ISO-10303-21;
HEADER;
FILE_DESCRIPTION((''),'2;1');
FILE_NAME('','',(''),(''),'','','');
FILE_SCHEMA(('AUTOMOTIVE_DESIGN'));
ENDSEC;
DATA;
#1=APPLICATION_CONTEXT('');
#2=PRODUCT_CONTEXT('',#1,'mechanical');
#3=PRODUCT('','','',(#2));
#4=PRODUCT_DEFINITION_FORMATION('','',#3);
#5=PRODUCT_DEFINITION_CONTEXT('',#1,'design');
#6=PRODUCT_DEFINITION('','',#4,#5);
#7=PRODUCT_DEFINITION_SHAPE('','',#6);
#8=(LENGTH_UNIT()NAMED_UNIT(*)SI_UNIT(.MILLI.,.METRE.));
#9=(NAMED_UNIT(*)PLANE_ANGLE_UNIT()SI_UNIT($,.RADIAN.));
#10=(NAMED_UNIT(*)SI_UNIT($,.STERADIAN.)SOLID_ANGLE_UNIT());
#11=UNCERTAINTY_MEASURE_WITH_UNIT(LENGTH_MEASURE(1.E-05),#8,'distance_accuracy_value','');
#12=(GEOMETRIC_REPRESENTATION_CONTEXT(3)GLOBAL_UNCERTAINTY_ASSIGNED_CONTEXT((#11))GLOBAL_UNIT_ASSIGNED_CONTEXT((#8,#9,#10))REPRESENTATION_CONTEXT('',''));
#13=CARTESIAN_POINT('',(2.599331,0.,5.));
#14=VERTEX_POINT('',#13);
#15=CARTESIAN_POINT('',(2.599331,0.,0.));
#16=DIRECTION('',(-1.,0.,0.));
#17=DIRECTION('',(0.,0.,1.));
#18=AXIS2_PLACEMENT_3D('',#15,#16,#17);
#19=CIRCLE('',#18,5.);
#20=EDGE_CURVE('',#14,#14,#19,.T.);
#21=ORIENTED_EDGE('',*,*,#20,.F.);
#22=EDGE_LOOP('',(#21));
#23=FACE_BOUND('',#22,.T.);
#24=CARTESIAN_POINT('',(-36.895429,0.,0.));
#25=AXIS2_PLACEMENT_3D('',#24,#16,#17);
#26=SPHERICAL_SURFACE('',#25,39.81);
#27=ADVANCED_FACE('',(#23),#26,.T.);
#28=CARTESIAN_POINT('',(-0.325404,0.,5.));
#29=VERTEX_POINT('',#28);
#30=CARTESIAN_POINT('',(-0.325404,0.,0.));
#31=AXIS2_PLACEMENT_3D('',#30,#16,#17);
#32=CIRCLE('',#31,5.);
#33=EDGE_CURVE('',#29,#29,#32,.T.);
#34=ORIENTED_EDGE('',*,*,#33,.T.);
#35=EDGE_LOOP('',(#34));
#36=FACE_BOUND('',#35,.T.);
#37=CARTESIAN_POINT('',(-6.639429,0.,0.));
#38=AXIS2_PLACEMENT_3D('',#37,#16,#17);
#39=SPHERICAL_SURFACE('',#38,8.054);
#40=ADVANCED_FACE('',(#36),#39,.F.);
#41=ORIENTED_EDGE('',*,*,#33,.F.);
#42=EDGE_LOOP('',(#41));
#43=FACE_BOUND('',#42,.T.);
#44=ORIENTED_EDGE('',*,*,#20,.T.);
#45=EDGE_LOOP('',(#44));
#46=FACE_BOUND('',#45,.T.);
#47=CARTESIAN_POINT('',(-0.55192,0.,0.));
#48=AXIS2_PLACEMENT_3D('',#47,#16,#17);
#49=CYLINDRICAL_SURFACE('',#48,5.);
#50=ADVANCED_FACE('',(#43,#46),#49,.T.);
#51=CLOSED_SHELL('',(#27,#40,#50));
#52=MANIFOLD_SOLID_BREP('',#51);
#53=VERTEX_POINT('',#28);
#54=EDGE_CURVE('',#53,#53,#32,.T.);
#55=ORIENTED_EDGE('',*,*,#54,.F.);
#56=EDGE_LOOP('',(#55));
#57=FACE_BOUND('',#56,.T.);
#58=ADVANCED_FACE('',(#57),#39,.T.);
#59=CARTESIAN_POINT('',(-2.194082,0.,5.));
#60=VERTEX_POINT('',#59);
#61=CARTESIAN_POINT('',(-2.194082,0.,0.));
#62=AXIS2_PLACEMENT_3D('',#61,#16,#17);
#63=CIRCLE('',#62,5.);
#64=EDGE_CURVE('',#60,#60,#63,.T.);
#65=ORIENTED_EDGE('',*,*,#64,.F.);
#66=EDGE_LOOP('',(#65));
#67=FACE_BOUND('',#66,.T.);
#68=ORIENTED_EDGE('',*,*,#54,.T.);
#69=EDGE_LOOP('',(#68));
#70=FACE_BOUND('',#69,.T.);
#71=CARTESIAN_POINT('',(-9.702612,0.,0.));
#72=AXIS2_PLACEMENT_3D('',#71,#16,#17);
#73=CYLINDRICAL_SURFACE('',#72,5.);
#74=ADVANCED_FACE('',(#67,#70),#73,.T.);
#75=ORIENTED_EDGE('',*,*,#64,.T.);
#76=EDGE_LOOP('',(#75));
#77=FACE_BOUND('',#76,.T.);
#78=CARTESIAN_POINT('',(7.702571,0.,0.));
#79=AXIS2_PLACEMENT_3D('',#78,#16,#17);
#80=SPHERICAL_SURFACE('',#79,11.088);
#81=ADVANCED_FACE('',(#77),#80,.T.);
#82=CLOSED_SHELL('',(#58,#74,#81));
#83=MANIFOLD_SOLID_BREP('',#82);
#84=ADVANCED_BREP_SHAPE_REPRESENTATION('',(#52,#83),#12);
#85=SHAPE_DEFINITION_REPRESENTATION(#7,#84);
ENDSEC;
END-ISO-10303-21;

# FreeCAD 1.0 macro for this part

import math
import FreeCAD as App
import Part
import Sketcher
from FreeCAD import Vector
Q = App.Units.Quantity

doc = App.newDocument("Part")
body = doc.addObject("PartDesign::Body", "Body")

# Sketch on XZ plane
sketch1 = body.newObject("Sketcher::SketchObject", "Sketch")
sketch1.AttachmentSupport = (doc.getObject("XZ_Plane"), [""])
sketch1.MapMode = "FlatFace"
sketch1.addGeometry(Part.ArcOfCircle(Part.Circle(Vector(7.702571, 0, 0), Vector(0, 0, 1), 11.088), math.radians(180), math.radians(206.803878)), False)
sketch1.addGeometry(Part.LineSegment(Vector(-3.385429, 0, 0), Vector(1.414571, 0, 0)), False)
sketch1.addGeometry(Part.ArcOfCircle(Part.Circle(Vector(-6.639429, 0, 0), Vector(0, 0, 1), 8.054), math.radians(-38.375275), math.radians(0)), False)
sketch1.addGeometry(Part.LineSegment(Vector(-0.325404, -5, 0), Vector(-2.194082, -5, 0)), False)
sketch1.addConstraint(Sketcher.Constraint("Coincident", 0, 1, 1, 1))
sketch1.addConstraint(Sketcher.Constraint("Coincident", 1, 2, 2, 2))
sketch1.addConstraint(Sketcher.Constraint("Coincident", 2, 1, 3, 1))
sketch1.addConstraint(Sketcher.Constraint("Coincident", 3, 2, 0, 2))
sketch1.addConstraint(Sketcher.Constraint("Horizontal", 1))
sketch1.addConstraint(Sketcher.Constraint("Horizontal", 3))
sketch1.addConstraint(Sketcher.Constraint("PointOnObject", 0, 3, -1))
sketch1.addConstraint(Sketcher.Constraint("PointOnObject", 2, 3, -1))
sketch1.addConstraint(Sketcher.Constraint("PointOnObject", 0, 1, -1))
sketch1.addConstraint(Sketcher.Constraint("DistanceX", 1, 1, 1, 2, Q("4.8 mm")))
sketch1.addConstraint(Sketcher.Constraint("DistanceY", 2, 1, -1, 1, Q("5 mm")))
sketch1.addConstraint(Sketcher.Constraint("Radius", 0, Q("11.088 mm")))
sketch1.addConstraint(Sketcher.Constraint("Radius", 2, Q("8.054 mm")))
sketch1.addConstraint(Sketcher.Constraint("DistanceX", -1, 1, 0, 3, Q("7.702571 mm")))
revolution = body.newObject("PartDesign::Revolution", "Revolution")
revolution.Profile = sketch1
revolution.ReferenceAxis = (sketch1, ["H_Axis"])
revolution.Angle = 360
body2 = doc.addObject("PartDesign::Body", "Body001")

# Sketch on XZ plane
sketch2 = body2.newObject("Sketcher::SketchObject", "Sketch001")
sketch2.AttachmentSupport = (doc.getObject("XZ_Plane001"), [""])
sketch2.MapMode = "FlatFace"
sketch2.addGeometry(Part.LineSegment(Vector(2.599331, -5, 0), Vector(-0.325404, -5, 0)), False)
sketch2.addGeometry(Part.ArcOfCircle(Part.Circle(Vector(-6.639429, 0, 0), Vector(0, 0, 1), 8.054), math.radians(-38.375275), math.radians(0)), False)
sketch2.addGeometry(Part.LineSegment(Vector(1.414571, 0, 0), Vector(2.914571, 0, 0)), False)
sketch2.addGeometry(Part.ArcOfCircle(Part.Circle(Vector(-36.895429, 0, 0), Vector(0, 0, 1), 39.81), math.radians(-7.215209), math.radians(0)), False)
sketch2.addConstraint(Sketcher.Constraint("Coincident", 0, 2, 1, 1))
sketch2.addConstraint(Sketcher.Constraint("Coincident", 1, 2, 2, 1))
sketch2.addConstraint(Sketcher.Constraint("Coincident", 2, 2, 3, 2))
sketch2.addConstraint(Sketcher.Constraint("Coincident", 3, 1, 0, 1))
sketch2.addConstraint(Sketcher.Constraint("Horizontal", 0))
sketch2.addConstraint(Sketcher.Constraint("Horizontal", 2))
sketch2.addConstraint(Sketcher.Constraint("PointOnObject", 1, 3, -1))
sketch2.addConstraint(Sketcher.Constraint("PointOnObject", 3, 3, -1))
sketch2.addConstraint(Sketcher.Constraint("PointOnObject", 1, 2, -1))
sketch2.addConstraint(Sketcher.Constraint("Radius", 3, Q("39.81 mm")))
sketch2.addConstraint(Sketcher.Constraint("DistanceX", 2, 1, 2, 2, Q("1.5 mm")))
sketch2.addConstraint(Sketcher.Constraint("DistanceY", 0, 2, -1, 1, Q("5 mm")))
sketch2.addConstraint(Sketcher.Constraint("Radius", 1, Q("8.054 mm")))
sketch2.addConstraint(Sketcher.Constraint("DistanceX", 1, 3, -1, 1, Q("6.639429 mm")))
revolution2 = body2.newObject("PartDesign::Revolution", "Revolution001")
revolution2.Profile = sketch2
revolution2.ReferenceAxis = (sketch2, ["H_Axis"])
revolution2.Angle = 360

doc.recompute()
